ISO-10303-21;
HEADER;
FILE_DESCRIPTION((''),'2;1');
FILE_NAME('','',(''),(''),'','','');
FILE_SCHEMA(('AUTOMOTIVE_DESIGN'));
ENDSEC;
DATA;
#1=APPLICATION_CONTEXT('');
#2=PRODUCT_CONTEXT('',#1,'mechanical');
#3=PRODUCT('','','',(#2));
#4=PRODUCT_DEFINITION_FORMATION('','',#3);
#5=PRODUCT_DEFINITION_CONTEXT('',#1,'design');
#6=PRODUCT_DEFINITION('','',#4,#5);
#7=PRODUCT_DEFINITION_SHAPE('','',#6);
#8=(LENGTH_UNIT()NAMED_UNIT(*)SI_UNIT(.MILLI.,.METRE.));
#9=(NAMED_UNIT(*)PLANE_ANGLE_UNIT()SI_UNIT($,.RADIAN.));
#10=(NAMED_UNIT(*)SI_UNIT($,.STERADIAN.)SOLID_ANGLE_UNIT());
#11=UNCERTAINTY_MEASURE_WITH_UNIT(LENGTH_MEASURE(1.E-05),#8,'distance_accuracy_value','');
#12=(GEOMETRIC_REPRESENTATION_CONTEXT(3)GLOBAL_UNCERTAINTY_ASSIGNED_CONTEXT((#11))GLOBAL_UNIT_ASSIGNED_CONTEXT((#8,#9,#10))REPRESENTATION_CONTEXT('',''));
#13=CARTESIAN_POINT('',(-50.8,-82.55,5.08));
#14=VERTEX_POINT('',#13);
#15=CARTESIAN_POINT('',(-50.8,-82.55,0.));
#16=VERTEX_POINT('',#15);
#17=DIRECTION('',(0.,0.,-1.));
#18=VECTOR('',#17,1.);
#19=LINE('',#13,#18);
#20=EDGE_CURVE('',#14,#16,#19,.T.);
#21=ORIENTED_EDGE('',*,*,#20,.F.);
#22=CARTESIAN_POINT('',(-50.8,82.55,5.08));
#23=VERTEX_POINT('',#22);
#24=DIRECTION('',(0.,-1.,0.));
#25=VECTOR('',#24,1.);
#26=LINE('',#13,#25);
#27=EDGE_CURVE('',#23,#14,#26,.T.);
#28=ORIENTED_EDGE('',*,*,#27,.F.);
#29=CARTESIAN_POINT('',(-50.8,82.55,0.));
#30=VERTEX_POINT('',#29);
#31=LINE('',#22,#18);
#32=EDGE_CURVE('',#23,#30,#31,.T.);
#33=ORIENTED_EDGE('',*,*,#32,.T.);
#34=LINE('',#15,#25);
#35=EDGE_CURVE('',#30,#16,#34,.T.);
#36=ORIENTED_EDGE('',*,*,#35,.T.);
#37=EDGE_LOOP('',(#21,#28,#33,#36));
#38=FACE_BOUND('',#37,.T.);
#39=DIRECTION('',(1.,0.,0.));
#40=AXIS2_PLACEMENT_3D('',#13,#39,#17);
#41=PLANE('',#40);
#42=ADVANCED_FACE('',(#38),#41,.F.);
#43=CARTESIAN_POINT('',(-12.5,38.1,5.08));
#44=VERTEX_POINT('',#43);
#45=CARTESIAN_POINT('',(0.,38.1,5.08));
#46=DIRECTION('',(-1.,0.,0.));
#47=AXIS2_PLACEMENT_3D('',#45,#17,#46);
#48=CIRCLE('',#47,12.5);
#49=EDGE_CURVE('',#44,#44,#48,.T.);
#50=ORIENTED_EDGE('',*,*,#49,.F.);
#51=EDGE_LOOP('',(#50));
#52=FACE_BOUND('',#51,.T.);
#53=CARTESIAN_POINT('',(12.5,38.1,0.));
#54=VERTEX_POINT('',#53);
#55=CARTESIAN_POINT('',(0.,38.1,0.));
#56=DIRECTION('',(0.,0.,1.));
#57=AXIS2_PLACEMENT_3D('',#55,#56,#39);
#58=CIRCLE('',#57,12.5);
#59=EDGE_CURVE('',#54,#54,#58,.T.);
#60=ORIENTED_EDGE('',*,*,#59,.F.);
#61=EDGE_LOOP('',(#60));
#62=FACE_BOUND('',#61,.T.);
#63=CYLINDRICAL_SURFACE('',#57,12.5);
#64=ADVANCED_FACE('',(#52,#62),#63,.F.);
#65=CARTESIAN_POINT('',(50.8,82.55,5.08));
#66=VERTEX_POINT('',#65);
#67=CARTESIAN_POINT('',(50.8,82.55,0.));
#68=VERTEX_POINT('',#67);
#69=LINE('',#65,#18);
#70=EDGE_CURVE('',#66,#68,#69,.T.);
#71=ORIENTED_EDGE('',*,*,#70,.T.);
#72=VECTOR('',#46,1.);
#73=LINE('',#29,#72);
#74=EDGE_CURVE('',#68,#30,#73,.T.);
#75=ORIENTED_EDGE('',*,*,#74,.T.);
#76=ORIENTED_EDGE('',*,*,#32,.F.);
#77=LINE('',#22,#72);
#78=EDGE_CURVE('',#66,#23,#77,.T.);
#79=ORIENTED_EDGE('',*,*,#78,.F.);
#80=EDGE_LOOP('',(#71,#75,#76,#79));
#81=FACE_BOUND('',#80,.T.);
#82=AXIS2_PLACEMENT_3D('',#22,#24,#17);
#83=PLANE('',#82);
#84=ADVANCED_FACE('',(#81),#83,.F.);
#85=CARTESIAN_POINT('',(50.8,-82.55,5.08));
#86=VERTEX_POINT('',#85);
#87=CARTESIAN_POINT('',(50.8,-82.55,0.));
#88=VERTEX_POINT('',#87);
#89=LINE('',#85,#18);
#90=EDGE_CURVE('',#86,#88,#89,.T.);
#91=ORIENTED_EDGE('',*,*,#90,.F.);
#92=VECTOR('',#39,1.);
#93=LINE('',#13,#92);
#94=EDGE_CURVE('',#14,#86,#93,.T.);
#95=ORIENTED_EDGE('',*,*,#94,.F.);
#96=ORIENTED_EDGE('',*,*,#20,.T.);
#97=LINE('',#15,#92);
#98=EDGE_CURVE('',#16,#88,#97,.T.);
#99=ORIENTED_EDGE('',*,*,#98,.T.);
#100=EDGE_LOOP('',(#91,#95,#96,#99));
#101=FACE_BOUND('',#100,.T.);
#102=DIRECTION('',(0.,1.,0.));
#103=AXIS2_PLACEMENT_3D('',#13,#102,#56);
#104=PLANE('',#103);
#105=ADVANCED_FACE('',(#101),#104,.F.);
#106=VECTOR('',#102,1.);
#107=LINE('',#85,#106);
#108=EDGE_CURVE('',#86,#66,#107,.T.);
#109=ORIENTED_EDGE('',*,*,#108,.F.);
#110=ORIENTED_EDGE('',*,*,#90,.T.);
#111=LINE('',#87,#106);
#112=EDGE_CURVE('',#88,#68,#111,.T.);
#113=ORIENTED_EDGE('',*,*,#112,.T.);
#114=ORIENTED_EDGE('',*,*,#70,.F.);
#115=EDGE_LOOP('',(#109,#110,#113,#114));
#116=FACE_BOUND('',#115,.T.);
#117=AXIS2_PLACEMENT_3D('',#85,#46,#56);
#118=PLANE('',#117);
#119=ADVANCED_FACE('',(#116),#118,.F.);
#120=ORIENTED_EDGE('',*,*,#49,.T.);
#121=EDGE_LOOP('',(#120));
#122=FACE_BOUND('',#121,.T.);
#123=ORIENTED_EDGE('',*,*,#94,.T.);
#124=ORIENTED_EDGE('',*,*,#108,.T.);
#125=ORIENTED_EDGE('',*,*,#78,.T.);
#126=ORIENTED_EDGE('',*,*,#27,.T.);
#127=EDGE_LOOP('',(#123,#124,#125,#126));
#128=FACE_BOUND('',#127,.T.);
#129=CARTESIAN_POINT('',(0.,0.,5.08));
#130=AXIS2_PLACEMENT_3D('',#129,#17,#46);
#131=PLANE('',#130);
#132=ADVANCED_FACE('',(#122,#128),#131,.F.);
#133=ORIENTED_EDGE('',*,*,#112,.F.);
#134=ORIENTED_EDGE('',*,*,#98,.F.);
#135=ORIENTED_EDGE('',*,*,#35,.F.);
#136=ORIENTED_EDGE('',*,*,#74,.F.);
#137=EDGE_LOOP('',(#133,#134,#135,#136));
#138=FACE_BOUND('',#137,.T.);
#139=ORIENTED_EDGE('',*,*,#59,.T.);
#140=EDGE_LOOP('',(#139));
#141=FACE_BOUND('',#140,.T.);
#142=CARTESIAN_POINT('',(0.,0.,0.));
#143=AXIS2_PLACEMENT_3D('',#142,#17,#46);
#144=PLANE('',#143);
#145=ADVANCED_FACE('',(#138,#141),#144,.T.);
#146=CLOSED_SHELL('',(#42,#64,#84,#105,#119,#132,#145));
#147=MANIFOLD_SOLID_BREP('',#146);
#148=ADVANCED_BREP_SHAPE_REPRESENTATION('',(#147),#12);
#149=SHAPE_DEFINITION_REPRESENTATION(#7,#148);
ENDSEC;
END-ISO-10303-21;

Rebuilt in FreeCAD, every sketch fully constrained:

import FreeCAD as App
import Part
import Sketcher

V = App.Vector
Q = App.Units.Quantity


def add_polygon(sketch, points):
    """Adds a closed chain of lines whose ends are joined by coincident constraints."""
    first, n = sketch.GeometryCount, len(points)
    for a, b in zip(points, points[1:] + points[:1]):
        sketch.addGeometry(Part.LineSegment(App.Vector(*a, 0), App.Vector(*b, 0)), False)
    for i in range(n):
        sketch.addConstraint(Sketcher.Constraint("Coincident", first + i, 2, first + (i + 1) % n, 1))

doc = App.newDocument("Part")
params = doc.addObject("Spreadsheet::Sheet", "Params")
for row, (alias, value) in enumerate([
    ("sketch1_width", "4 in"),
    ("sketch1_height", "6.5 in"),
    ("pad1_length", "0.2 in"),
], start=1):
    params.set(f"A{row}", alias)
    params.set(f"B{row}", "=" + value)
    params.setAlias(f"B{row}", alias)

body = doc.addObject("PartDesign::Body", "Body")

sketch1 = doc.addObject("Sketcher::SketchObject", "Sketch")
body.addObject(sketch1)
sketch1.AttachmentSupport = (doc.XY_Plane, [""])
sketch1.MapMode = "FlatFace"
add_polygon(sketch1, [(-50.8, 82.55), (-50.8, -82.55), (50.8, -82.55), (50.8, 82.55)])
sketch1.addConstraint([
    Sketcher.Constraint("Vertical", 0),
    Sketcher.Constraint("Horizontal", 1),
    Sketcher.Constraint("Vertical", 2),
    Sketcher.Constraint("Horizontal", 3),
    Sketcher.Constraint("Symmetric", 0, 2, 2, 2, -1, 1),
    Sketcher.Constraint("DistanceX", 1, 1, 1, 2, Q("4 in")),
    Sketcher.Constraint("DistanceY", 0, 2, 0, 1, Q("6.5 in")),
])
sketch1.setExpression("Constraints[9]", "Params.sketch1_width")
sketch1.setExpression("Constraints[10]", "Params.sketch1_height")
pad1 = doc.addObject("PartDesign::Pad", "Pad")
body.addObject(pad1)
pad1.Profile = sketch1
pad1.setExpression("Length", "Params.pad1_length")

sketch2 = doc.addObject("Sketcher::SketchObject", "Sketch001")
body.addObject(sketch2)
sketch2.AttachmentSupport = (doc.XY_Plane, [""])
sketch2.MapMode = "FlatFace"
sketch2.AttachmentOffset = App.Placement(V(0, 0, 0.2 * 25.4), App.Rotation())
sketch2.addGeometry(Part.Circle(V(0, 38.1, 0), V(0, 0, 1), 12.5), False)
sketch2.addConstraint([
    Sketcher.Constraint("PointOnObject", 0, 3, -2),
    Sketcher.Constraint("DistanceY", -1, 1, 0, 3, Q("1.5 in")),
    Sketcher.Constraint("Diameter", 0, 25.0),
])
pocket1 = doc.addObject("PartDesign::Pocket", "Pocket")
body.addObject(pocket1)
pocket1.Profile = sketch2
pocket1.Type = "ThroughAll"
pocket1.Midplane = True

doc.recompute()
